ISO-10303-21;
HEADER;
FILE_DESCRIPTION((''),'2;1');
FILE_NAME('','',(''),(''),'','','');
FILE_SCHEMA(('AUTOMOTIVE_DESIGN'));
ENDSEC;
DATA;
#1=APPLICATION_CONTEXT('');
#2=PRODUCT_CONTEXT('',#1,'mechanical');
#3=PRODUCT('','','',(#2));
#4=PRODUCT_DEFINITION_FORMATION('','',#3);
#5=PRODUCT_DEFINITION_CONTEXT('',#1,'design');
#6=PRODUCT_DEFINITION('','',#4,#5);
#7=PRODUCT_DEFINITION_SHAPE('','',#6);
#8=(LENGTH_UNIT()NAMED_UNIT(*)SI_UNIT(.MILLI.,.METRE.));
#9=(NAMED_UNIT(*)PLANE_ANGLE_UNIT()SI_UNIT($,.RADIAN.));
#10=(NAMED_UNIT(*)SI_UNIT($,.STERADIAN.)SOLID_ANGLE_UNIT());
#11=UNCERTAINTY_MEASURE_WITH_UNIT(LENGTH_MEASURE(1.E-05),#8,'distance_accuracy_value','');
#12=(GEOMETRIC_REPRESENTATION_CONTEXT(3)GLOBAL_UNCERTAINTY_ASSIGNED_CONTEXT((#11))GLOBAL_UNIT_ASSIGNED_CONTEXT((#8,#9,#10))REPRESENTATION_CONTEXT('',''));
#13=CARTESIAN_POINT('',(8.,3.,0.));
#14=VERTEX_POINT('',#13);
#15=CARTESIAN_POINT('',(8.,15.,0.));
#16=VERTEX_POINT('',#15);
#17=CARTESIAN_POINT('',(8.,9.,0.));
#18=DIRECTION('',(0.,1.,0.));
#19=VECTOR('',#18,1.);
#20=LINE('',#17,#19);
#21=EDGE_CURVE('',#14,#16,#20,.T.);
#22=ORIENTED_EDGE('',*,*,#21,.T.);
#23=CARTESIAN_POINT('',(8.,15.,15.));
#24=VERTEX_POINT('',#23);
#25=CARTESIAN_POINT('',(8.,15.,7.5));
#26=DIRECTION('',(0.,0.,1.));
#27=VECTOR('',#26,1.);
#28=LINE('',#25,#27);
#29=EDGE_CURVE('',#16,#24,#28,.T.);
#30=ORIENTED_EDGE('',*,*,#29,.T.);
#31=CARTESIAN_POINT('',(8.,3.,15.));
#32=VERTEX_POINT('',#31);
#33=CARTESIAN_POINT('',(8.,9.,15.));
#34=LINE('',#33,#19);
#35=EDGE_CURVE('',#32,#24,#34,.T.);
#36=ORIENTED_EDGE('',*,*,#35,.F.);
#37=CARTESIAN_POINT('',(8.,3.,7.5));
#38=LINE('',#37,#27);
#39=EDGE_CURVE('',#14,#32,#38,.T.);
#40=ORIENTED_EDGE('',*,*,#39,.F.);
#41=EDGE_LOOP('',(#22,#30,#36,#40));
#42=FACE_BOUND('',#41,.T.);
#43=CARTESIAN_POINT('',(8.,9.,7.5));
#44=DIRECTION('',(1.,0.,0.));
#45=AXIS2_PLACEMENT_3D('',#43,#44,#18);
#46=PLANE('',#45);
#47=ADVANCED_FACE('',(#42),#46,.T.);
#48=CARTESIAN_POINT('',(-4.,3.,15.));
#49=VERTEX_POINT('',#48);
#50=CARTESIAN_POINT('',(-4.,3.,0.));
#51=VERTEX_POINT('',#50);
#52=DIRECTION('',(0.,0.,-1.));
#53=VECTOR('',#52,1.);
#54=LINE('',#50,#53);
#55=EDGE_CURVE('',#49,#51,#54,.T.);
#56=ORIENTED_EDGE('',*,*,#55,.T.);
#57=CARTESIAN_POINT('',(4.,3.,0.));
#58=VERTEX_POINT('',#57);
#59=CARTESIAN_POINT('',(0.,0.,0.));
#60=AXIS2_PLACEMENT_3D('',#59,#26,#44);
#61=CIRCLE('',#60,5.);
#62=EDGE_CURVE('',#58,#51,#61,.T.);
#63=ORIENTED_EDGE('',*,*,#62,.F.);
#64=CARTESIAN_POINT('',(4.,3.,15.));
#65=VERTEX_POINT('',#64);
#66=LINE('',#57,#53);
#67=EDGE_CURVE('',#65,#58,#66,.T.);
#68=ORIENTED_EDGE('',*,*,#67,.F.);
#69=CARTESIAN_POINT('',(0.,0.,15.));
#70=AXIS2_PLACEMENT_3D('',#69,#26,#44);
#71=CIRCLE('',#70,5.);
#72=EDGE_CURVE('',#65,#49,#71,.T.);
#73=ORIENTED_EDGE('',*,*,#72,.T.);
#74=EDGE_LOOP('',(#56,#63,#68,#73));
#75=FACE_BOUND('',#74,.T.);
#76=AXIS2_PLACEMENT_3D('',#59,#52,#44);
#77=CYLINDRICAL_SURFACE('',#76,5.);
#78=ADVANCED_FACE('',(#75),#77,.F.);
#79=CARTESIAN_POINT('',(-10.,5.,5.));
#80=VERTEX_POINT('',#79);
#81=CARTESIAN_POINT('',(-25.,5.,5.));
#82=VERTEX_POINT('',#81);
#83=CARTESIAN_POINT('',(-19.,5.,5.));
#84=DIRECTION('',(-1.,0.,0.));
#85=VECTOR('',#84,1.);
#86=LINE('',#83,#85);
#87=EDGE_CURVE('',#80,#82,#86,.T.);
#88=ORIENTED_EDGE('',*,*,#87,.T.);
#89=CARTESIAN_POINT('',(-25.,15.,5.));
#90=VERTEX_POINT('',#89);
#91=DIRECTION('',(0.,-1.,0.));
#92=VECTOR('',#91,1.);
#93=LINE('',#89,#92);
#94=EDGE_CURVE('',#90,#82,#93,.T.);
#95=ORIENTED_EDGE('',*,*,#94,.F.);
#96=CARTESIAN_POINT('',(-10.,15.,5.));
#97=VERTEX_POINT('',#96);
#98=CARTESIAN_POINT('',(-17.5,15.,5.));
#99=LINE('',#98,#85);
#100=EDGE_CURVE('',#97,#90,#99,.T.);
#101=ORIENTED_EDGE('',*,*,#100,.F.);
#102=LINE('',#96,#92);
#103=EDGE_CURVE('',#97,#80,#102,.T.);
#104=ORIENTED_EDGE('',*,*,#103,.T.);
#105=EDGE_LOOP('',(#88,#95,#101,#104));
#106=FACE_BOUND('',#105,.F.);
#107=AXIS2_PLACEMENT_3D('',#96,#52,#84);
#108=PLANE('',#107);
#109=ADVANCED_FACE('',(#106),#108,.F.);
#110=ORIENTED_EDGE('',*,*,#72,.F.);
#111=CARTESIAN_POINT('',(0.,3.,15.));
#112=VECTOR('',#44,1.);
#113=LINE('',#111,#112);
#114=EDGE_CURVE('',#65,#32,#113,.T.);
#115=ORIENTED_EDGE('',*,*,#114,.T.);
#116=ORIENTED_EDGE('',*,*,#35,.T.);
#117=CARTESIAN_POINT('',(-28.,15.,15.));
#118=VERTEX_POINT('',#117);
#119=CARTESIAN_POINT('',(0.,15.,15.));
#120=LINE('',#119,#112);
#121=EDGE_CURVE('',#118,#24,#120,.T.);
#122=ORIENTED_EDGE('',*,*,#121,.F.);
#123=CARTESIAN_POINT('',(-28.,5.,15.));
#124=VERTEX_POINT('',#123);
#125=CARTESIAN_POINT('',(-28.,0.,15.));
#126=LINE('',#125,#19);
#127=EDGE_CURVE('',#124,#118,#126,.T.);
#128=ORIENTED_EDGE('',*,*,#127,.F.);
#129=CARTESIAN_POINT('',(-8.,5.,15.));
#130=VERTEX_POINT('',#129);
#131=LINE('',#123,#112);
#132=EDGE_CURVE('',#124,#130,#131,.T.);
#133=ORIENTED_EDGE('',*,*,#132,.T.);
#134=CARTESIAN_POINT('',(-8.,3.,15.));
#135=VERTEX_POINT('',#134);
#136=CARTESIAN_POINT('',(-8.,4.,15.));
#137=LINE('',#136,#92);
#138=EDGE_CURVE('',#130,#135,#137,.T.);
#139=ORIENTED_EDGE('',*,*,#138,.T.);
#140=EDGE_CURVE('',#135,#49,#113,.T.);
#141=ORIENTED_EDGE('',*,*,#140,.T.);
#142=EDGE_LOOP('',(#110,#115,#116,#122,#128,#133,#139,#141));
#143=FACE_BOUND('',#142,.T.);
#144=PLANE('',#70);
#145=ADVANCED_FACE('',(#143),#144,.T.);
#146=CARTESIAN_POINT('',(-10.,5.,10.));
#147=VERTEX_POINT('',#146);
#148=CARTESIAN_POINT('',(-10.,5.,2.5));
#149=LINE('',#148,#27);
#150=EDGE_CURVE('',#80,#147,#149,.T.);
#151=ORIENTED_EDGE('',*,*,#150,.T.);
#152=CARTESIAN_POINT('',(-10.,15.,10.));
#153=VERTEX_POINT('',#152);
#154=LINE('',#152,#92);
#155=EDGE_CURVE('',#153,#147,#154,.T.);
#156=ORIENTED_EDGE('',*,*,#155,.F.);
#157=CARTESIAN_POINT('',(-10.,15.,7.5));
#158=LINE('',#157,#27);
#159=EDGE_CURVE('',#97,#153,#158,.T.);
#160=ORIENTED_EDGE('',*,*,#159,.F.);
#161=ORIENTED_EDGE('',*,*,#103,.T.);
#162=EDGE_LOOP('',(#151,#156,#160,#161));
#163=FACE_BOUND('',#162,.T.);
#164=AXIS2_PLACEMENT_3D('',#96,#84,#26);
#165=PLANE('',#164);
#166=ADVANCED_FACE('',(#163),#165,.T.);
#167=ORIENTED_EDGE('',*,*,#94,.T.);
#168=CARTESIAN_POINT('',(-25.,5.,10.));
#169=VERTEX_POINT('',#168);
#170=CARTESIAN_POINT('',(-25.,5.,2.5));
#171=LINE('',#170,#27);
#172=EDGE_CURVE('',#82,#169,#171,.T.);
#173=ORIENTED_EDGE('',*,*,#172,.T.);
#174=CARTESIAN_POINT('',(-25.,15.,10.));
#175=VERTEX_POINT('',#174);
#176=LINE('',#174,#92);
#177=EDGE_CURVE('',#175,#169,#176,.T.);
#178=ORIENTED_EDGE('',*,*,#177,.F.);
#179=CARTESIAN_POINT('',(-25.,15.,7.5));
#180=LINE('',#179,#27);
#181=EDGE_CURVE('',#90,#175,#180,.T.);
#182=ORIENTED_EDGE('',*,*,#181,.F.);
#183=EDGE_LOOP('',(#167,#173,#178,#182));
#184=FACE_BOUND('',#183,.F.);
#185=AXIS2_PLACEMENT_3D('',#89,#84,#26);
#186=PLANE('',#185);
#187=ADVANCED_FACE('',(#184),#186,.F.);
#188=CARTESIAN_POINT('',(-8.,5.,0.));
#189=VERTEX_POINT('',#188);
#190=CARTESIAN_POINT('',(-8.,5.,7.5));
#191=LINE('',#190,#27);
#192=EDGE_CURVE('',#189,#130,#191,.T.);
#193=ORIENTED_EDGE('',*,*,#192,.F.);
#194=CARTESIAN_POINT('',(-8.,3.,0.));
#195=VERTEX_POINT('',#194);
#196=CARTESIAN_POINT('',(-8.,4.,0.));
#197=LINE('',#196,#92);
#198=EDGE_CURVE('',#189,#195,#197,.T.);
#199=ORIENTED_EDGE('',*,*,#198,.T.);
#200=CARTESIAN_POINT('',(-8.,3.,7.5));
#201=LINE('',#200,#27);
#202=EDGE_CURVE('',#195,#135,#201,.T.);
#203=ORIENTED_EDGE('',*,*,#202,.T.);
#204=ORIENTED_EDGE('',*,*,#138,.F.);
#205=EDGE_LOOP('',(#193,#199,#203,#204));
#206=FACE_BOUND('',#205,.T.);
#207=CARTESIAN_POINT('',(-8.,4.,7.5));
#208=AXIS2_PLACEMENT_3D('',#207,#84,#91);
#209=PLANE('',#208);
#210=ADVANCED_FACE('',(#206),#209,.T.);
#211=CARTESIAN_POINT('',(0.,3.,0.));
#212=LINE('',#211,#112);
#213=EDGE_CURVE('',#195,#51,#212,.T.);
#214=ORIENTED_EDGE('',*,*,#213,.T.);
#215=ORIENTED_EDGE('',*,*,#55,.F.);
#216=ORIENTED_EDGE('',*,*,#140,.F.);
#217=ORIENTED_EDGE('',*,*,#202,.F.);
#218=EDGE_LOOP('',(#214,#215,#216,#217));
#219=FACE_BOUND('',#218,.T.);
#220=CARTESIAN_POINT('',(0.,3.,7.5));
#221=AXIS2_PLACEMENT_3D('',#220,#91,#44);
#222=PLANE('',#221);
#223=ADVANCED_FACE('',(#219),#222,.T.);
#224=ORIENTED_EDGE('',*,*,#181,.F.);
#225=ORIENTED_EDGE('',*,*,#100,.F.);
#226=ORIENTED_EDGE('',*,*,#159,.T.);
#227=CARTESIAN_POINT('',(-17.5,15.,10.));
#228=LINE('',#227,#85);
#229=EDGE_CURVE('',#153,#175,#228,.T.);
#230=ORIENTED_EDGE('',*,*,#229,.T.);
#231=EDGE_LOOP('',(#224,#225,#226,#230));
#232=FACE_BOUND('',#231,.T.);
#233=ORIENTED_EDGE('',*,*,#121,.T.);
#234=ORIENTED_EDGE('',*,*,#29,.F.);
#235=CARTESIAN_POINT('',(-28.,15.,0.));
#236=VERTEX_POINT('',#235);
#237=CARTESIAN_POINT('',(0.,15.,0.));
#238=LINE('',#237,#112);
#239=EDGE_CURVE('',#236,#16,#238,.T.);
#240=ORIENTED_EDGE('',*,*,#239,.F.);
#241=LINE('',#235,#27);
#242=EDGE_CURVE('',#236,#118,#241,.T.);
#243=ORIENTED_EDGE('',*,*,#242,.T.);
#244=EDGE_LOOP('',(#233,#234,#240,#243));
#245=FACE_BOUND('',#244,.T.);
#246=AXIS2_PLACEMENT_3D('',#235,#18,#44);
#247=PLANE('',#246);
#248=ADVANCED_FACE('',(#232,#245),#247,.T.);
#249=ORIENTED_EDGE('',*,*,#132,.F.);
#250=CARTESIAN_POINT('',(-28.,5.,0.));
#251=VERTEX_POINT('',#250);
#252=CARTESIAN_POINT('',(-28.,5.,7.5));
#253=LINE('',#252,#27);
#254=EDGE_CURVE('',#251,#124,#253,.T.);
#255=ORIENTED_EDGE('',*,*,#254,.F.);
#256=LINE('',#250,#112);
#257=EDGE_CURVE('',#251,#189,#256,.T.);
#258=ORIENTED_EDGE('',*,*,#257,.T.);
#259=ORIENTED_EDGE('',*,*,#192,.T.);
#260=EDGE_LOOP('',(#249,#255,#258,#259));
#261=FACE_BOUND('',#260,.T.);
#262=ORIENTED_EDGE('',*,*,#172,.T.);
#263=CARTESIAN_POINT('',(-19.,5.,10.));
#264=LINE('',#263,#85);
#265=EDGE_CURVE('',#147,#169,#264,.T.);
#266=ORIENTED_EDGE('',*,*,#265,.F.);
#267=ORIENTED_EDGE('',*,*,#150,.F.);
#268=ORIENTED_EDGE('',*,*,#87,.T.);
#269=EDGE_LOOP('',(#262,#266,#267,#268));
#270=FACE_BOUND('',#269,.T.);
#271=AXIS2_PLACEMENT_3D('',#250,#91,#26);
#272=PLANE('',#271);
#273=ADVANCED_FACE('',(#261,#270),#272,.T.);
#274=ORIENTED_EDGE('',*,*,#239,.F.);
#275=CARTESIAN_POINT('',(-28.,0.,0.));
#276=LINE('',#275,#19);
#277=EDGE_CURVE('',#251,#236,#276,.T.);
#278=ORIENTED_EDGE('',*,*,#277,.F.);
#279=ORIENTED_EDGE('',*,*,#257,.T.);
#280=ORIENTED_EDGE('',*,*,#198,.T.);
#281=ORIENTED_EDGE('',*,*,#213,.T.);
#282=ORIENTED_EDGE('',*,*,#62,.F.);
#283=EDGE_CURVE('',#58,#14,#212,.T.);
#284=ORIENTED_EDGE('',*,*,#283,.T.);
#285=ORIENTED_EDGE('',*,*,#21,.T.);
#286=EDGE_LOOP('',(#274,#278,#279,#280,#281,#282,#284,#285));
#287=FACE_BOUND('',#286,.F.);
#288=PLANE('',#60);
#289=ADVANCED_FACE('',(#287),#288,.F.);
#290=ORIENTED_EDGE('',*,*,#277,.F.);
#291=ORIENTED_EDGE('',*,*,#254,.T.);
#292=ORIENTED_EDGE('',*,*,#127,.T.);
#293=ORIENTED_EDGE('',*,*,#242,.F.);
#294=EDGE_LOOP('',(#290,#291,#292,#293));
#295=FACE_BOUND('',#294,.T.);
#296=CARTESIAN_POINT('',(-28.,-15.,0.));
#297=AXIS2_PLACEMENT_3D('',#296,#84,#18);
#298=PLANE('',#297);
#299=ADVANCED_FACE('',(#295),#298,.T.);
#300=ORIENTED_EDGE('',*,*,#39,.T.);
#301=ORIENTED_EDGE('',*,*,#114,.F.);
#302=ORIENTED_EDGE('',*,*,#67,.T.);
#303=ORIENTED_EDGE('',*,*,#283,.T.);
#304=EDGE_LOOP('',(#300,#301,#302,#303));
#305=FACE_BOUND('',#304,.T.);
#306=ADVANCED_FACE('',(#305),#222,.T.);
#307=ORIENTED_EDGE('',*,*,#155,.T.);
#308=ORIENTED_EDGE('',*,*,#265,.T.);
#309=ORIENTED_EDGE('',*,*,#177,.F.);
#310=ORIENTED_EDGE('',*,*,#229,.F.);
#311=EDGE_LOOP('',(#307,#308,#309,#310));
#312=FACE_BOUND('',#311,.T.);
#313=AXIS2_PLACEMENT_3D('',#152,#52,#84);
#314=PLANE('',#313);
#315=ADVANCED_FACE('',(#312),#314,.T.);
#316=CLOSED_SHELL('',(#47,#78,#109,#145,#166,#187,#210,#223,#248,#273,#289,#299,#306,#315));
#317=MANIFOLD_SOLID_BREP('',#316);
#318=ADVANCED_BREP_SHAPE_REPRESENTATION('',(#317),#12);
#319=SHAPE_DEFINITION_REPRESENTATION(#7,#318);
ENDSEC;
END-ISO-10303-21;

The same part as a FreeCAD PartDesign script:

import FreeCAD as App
import Part
import Sketcher

V = App.Vector


def add_polygon(sketch, points):
    """Adds a closed chain of lines whose ends are joined by coincident constraints."""
    first, n = sketch.GeometryCount, len(points)
    for a, b in zip(points, points[1:] + points[:1]):
        sketch.addGeometry(Part.LineSegment(App.Vector(*a, 0), App.Vector(*b, 0)), False)
    for i in range(n):
        sketch.addConstraint(Sketcher.Constraint("Coincident", first + i, 2, first + (i + 1) % n, 1))

doc = App.newDocument("Part")
body = doc.addObject("PartDesign::Body", "Body")

sketch1 = body.newObject("Sketcher::SketchObject", "Sketch")
sketch1.AttachmentSupport = (doc.getObject("XY_Plane"), [""])
sketch1.MapMode = "FlatFace"
add_polygon(sketch1, [(-28, 15), (-28, -15), (28, -15), (28, 15)])
sketch1.addGeometry(Part.Circle(V(0, 0, 0), V(0, 0, 1), 5), False)
sketch1.addConstraint(Sketcher.Constraint("Vertical", 0))
sketch1.addConstraint(Sketcher.Constraint("Horizontal", 1))
sketch1.addConstraint(Sketcher.Constraint("Vertical", 2))
sketch1.addConstraint(Sketcher.Constraint("Horizontal", 3))
sketch1.addConstraint(Sketcher.Constraint("Coincident", 4, 3, -1, 1))
sketch1.addConstraint(Sketcher.Constraint("Symmetric", 0, 2, 2, 2, -1, 1))
sketch1.addConstraint(Sketcher.Constraint("Diameter", 4, 10.0))
sketch1.addConstraint(Sketcher.Constraint("DistanceX", 1, 1, 1, 2, 56.0))
sketch1.addConstraint(Sketcher.Constraint("DistanceY", 0, 2, 0, 1, 30.0))
pad1 = body.newObject("PartDesign::Pad", "Pad")
pad1.Profile = sketch1
pad1.Length = 15

sketch2 = body.newObject("Sketcher::SketchObject", "Sketch001")
sketch2.AttachmentSupport = (doc.getObject("XZ_Plane"), [""])
sketch2.MapMode = "FlatFace"
sketch2.AttachmentOffset = App.Placement(V(0, 0, 15), App.Rotation())
add_polygon(sketch2, [(-28, 15), (-28, 0), (28, 0), (28, 15)])
sketch2.addConstraint(Sketcher.Constraint("Vertical", 0))
sketch2.addConstraint(Sketcher.Constraint("Horizontal", 1))
sketch2.addConstraint(Sketcher.Constraint("Vertical", 2))
sketch2.addConstraint(Sketcher.Constraint("Horizontal", 3))
sketch2.addConstraint(Sketcher.Constraint("Symmetric", 0, 2, 1, 2, -1, 1))
sketch2.addConstraint(Sketcher.Constraint("DistanceX", 1, 1, 1, 2, 56.0))
sketch2.addConstraint(Sketcher.Constraint("DistanceY", 0, 2, 0, 1, 15.0))
pocket1 = body.newObject("PartDesign::Pocket", "Pocket")
pocket1.Profile = sketch2
pocket1.Length = 18

sketch3 = body.newObject("Sketcher::SketchObject", "Sketch002")
sketch3.AttachmentSupport = (doc.getObject("XZ_Plane"), [""])
sketch3.MapMode = "FlatFace"
sketch3.AttachmentOffset = App.Placement(V(0, 0, -15), App.Rotation())
add_polygon(sketch3, [(-10, 10), (-10, 5), (-25, 5), (-25, 10)])
sketch3.addConstraint(Sketcher.Constraint("Vertical", 0))
sketch3.addConstraint(Sketcher.Constraint("Horizontal", 1))
sketch3.addConstraint(Sketcher.Constraint("Vertical", 2))
sketch3.addConstraint(Sketcher.Constraint("Horizontal", 3))
sketch3.addConstraint(Sketcher.Constraint("DistanceX", 1, 2, 1, 1, 15.0))
sketch3.addConstraint(Sketcher.Constraint("DistanceY", 0, 2, 0, 1, 5.0))
sketch3.addConstraint(Sketcher.Constraint("DistanceX", 0, 2, -1, 1, 10.0))
sketch3.addConstraint(Sketcher.Constraint("DistanceY", -1, 1, 0, 2, 5.0))
pocket2 = body.newObject("PartDesign::Pocket", "Pocket001")
pocket2.Profile = sketch3
pocket2.Length = 25
pocket2.Reversed = True

sketch4 = body.newObject("Sketcher::SketchObject", "Sketch003")
sketch4.AttachmentSupport = (doc.getObject("YZ_Plane"), [""])
sketch4.MapMode = "FlatFace"
sketch4.AttachmentOffset = App.Placement(V(0, 0, -28), App.Rotation())
add_polygon(sketch4, [(5, 15), (5, 0), (3, 0), (3, 15)])
sketch4.addConstraint(Sketcher.Constraint("Vertical", 0))
sketch4.addConstraint(Sketcher.Constraint("Horizontal", 1))
sketch4.addConstraint(Sketcher.Constraint("Vertical", 2))
sketch4.addConstraint(Sketcher.Constraint("Horizontal", 3))
sketch4.addConstraint(Sketcher.Constraint("PointOnObject", 0, 2, -1))
sketch4.addConstraint(Sketcher.Constraint("DistanceX", 1, 2, 1, 1, 2.0))
sketch4.addConstraint(Sketcher.Constraint("DistanceY", 0, 2, 0, 1, 15.0))
sketch4.addConstraint(Sketcher.Constraint("DistanceX", -1, 1, 0, 2, 5.0))
pocket3 = body.newObject("PartDesign::Pocket", "Pocket002")
pocket3.Profile = sketch4
pocket3.Length = 20
pocket3.Reversed = True

sketch5 = body.newObject("Sketcher::SketchObject", "Sketch004")
sketch5.AttachmentSupport = (doc.getObject("YZ_Plane"), [""])
sketch5.MapMode = "FlatFace"
sketch5.AttachmentOffset = App.Placement(V(0, 0, 28), App.Rotation())
add_polygon(sketch5, [(3, 15), (3, 0), (15, 0), (15, 15)])
sketch5.addConstraint(Sketcher.Constraint("Vertical", 0))
sketch5.addConstraint(Sketcher.Constraint("Horizontal", 1))
sketch5.addConstraint(Sketcher.Constraint("Vertical", 2))
sketch5.addConstraint(Sketcher.Constraint("Horizontal", 3))
sketch5.addConstraint(Sketcher.Constraint("PointOnObject", 0, 2, -1))
sketch5.addConstraint(Sketcher.Constraint("DistanceX", 1, 1, 1, 2, 12.0))
sketch5.addConstraint(Sketcher.Constraint("DistanceY", 0, 2, 0, 1, 15.0))
sketch5.addConstraint(Sketcher.Constraint("DistanceX", -1, 1, 0, 2, 3.0))
pocket4 = body.newObject("PartDesign::Pocket", "Pocket003")
pocket4.Profile = sketch5
pocket4.Length = 20

doc.recompute()
